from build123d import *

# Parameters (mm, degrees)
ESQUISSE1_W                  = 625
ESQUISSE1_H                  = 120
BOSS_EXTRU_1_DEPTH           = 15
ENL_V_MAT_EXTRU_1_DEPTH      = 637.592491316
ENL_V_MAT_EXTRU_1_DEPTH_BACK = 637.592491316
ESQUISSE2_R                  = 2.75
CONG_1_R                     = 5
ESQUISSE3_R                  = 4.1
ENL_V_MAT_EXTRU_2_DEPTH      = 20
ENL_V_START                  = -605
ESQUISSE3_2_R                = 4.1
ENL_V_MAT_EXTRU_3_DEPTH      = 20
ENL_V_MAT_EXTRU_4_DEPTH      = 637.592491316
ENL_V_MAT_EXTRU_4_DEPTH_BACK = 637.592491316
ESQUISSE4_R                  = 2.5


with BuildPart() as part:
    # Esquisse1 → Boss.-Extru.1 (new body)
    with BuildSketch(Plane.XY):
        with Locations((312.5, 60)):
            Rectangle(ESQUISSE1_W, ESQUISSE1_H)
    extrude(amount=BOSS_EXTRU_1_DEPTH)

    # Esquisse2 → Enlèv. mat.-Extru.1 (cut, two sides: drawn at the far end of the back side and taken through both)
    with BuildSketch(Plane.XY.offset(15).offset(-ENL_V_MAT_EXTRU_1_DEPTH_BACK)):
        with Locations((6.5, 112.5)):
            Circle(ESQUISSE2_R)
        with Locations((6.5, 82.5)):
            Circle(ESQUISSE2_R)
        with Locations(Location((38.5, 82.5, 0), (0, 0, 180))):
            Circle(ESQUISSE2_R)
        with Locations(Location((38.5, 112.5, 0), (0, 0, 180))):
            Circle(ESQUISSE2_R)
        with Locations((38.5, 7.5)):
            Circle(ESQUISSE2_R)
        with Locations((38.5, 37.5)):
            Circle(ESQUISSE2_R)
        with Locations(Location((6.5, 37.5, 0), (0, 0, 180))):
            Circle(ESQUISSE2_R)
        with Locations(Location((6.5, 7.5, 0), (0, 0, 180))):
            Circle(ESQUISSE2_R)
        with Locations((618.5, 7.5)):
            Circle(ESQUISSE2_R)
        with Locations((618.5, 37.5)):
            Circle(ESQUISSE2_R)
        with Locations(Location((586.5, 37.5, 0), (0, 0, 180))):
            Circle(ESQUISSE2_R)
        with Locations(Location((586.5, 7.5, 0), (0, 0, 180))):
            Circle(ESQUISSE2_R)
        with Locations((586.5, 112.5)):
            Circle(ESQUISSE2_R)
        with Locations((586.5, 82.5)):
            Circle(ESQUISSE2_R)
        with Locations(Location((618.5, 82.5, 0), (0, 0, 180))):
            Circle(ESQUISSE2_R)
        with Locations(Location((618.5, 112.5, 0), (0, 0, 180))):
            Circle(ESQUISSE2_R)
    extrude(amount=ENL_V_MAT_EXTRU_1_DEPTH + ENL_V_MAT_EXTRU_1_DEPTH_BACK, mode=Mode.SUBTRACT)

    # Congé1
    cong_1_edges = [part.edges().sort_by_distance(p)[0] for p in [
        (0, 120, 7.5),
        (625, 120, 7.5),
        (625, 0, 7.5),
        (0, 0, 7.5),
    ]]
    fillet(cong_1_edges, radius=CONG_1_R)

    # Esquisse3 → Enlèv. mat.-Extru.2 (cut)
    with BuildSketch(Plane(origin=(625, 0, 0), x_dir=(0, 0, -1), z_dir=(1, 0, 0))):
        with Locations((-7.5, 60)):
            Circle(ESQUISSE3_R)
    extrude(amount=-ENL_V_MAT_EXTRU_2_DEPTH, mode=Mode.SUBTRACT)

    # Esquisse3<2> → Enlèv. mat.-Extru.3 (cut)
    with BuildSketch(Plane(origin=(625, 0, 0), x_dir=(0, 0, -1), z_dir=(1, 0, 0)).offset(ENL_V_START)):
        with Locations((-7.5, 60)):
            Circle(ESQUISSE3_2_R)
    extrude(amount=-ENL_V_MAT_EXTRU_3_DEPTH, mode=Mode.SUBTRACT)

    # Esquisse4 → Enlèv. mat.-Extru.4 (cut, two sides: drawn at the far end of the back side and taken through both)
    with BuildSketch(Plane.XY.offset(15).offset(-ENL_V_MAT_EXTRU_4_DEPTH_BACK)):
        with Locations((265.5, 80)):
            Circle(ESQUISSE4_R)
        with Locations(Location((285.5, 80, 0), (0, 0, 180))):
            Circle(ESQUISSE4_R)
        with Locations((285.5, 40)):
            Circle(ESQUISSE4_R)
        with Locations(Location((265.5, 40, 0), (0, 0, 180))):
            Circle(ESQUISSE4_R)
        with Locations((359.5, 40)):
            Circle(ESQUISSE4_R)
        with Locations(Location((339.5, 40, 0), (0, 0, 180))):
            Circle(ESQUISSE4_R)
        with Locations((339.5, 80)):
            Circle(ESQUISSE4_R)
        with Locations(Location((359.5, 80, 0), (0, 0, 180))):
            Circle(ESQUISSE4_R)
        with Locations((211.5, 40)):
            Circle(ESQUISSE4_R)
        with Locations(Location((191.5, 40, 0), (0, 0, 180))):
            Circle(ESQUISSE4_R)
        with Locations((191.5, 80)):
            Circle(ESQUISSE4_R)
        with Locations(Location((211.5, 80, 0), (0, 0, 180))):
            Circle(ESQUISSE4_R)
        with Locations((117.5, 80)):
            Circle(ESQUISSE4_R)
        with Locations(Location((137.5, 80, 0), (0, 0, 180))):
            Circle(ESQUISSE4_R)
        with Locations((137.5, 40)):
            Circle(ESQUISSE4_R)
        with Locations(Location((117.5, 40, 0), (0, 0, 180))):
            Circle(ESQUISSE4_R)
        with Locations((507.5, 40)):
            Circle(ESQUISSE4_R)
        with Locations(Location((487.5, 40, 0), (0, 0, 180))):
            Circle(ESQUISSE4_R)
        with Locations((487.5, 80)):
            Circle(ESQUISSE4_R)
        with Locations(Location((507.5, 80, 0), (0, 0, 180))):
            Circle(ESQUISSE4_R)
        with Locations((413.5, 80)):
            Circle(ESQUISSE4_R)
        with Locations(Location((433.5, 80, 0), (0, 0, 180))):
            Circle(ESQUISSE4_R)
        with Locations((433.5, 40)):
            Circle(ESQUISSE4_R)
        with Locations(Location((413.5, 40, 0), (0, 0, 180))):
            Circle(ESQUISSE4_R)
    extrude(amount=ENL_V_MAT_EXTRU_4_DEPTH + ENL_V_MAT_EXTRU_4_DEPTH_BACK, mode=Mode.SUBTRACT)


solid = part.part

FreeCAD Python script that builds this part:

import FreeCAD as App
import Part
import Sketcher
from FreeCAD import Vector


def edges_at(feature, points):
    """Names of the edges that pass closest to the given points."""
    edges = feature.Shape.Edges
    near = lambda p: min(range(len(edges)), key=lambda i: edges[i].distToShape(Part.Vertex(*p))[0])
    return sorted({f"Edge{near(p) + 1}" for p in points})


def add_polygon(sketch, points):
    """Adds a closed chain of lines whose ends are joined by coincident constraints."""
    first, n = sketch.GeometryCount, len(points)
    for a, b in zip(points, points[1:] + points[:1]):
        sketch.addGeometry(Part.LineSegment(App.Vector(*a, 0), App.Vector(*b, 0)), False)
    for i in range(n):
        sketch.addConstraint(Sketcher.Constraint("Coincident", first + i, 2, first + (i + 1) % n, 1))

doc = App.newDocument("Part")
body = doc.addObject("PartDesign::Body", "Body")

sketch1 = body.newObject("Sketcher::SketchObject", "Sketch")
sketch1.AttachmentSupport = (doc.getObject("XY_Plane"), [""])
sketch1.MapMode = "FlatFace"
add_polygon(sketch1, [(0, 120), (0, 0), (625, 0), (625, 120)])
sketch1.addConstraint([
    Sketcher.Constraint("Vertical", 0),
    Sketcher.Constraint("Horizontal", 1),
    Sketcher.Constraint("Vertical", 2),
    Sketcher.Constraint("Horizontal", 3),
    Sketcher.Constraint("Coincident", 0, 2, -1, 1),
    Sketcher.Constraint("DistanceX", 1, 1, 1, 2, 625.0),
    Sketcher.Constraint("DistanceY", 0, 2, 0, 1, 120.0),
])
pad1 = body.newObject("PartDesign::Pad", "Pad")
pad1.Profile = sketch1
pad1.Length = 15

sketch2 = body.newObject("Sketcher::SketchObject", "Sketch001")
sketch2.AttachmentSupport = (doc.getObject("XY_Plane"), [""])
sketch2.MapMode = "FlatFace"
sketch2.AttachmentOffset = App.Placement(Vector(0, 0, 15), App.Rotation())
sketch2.addGeometry([
    Part.Circle(Vector(6.5, 112.5, 0), Vector(0, 0, 1), 2.75),
    Part.Circle(Vector(6.5, 82.5, 0), Vector(0, 0, 1), 2.75),
    Part.Circle(Vector(38.5, 82.5, 0), Vector(0, 0, 1), 2.75),
    Part.Circle(Vector(38.5, 112.5, 0), Vector(0, 0, 1), 2.75),
    Part.Circle(Vector(38.5, 7.5, 0), Vector(0, 0, 1), 2.75),
    Part.Circle(Vector(38.5, 37.5, 0), Vector(0, 0, 1), 2.75),
    Part.Circle(Vector(6.5, 37.5, 0), Vector(0, 0, 1), 2.75),
    Part.Circle(Vector(6.5, 7.5, 0), Vector(0, 0, 1), 2.75),
    Part.Circle(Vector(618.5, 7.5, 0), Vector(0, 0, 1), 2.75),
    Part.Circle(Vector(618.5, 37.5, 0), Vector(0, 0, 1), 2.75),
    Part.Circle(Vector(586.5, 37.5, 0), Vector(0, 0, 1), 2.75),
    Part.Circle(Vector(586.5, 7.5, 0), Vector(0, 0, 1), 2.75),
    Part.Circle(Vector(586.5, 112.5, 0), Vector(0, 0, 1), 2.75),
    Part.Circle(Vector(586.5, 82.5, 0), Vector(0, 0, 1), 2.75),
    Part.Circle(Vector(618.5, 82.5, 0), Vector(0, 0, 1), 2.75),
    Part.Circle(Vector(618.5, 112.5, 0), Vector(0, 0, 1), 2.75),
], False)
sketch2.addConstraint([
    Sketcher.Constraint("Equal", 0, 1),
    Sketcher.Constraint("Equal", 1, 2),
    Sketcher.Constraint("Equal", 2, 3),
    Sketcher.Constraint("Equal", 3, 4),
    Sketcher.Constraint("Equal", 4, 5),
    Sketcher.Constraint("Equal", 5, 6),
    Sketcher.Constraint("Equal", 6, 7),
    Sketcher.Constraint("Equal", 7, 8),
    Sketcher.Constraint("Equal", 8, 9),
    Sketcher.Constraint("Equal", 9, 10),
    Sketcher.Constraint("Equal", 10, 11),
    Sketcher.Constraint("Equal", 11, 12),
    Sketcher.Constraint("Equal", 12, 13),
    Sketcher.Constraint("Equal", 13, 14),
    Sketcher.Constraint("Equal", 14, 15),
    Sketcher.Constraint("Horizontal", 1, 3, 2, 3),
    Sketcher.Constraint("Horizontal", 0, 3, 3, 3),
    Sketcher.Constraint("Horizontal", 5, 3, 6, 3),
    Sketcher.Constraint("Horizontal", 4, 3, 7, 3),
    Sketcher.Constraint("Horizontal", 7, 3, 8, 3),
    Sketcher.Constraint("Horizontal", 6, 3, 9, 3),
    Sketcher.Constraint("Horizontal", 9, 3, 10, 3),
    Sketcher.Constraint("Horizontal", 8, 3, 11, 3),
    Sketcher.Constraint("Horizontal", 3, 3, 12, 3),
    Sketcher.Constraint("Horizontal", 2, 3, 13, 3),
    Sketcher.Constraint("Horizontal", 13, 3, 14, 3),
    Sketcher.Constraint("Horizontal", 12, 3, 15, 3),
    Sketcher.Constraint("Vertical", 0, 3, 1, 3),
    Sketcher.Constraint("Vertical", 2, 3, 3, 3),
    Sketcher.Constraint("Vertical", 3, 3, 4, 3),
    Sketcher.Constraint("Vertical", 4, 3, 5, 3),
    Sketcher.Constraint("Vertical", 1, 3, 6, 3),
    Sketcher.Constraint("Vertical", 6, 3, 7, 3),
    Sketcher.Constraint("Vertical", 8, 3, 9, 3),
    Sketcher.Constraint("Vertical", 10, 3, 11, 3),
    Sketcher.Constraint("Vertical", 11, 3, 12, 3),
    Sketcher.Constraint("Vertical", 12, 3, 13, 3),
    Sketcher.Constraint("Vertical", 9, 3, 14, 3),
    Sketcher.Constraint("Vertical", 14, 3, 15, 3),
    Sketcher.Constraint("Diameter", 0, 5.5),
    Sketcher.Constraint("DistanceY", 1, 3, 0, 3, 30.0),
    Sketcher.Constraint("DistanceX", 1, 3, 2, 3, 32.0),
    Sketcher.Constraint("DistanceY", 4, 3, 2, 3, 75.0),
    Sketcher.Constraint("DistanceY", 4, 3, 5, 3, 30.0),
    Sketcher.Constraint("DistanceX", 4, 3, 8, 3, 580.0),
    Sketcher.Constraint("DistanceX", 10, 3, 9, 3, 32.0),
    Sketcher.Constraint("DistanceX", -1, 1, 0, 3, 6.5),
    Sketcher.Constraint("DistanceY", -1, 1, 0, 3, 112.5),
])
pocket1 = body.newObject("PartDesign::Pocket", "Pocket")
pocket1.Profile = sketch2
pocket1.Type = "ThroughAll"
pocket1.Midplane = True
doc.recompute()

fillet = body.newObject("PartDesign::Fillet", "Fillet")
fillet.Base = (pocket1, edges_at(pocket1, [
    (0, 120, 7.5),
    (625, 120, 7.5),
    (625, 0, 7.5),
    (0, 0, 7.5),
]))
fillet.Radius = 5

sketch3 = body.newObject("Sketcher::SketchObject", "Sketch002")
sketch3.AttachmentSupport = (doc.getObject("YZ_Plane"), [""])
sketch3.MapMode = "FlatFace"
sketch3.AttachmentOffset = App.Placement(Vector(0, 0, 625), App.Rotation())
sketch3.addGeometry(Part.Circle(Vector(60, 7.5, 0), Vector(0, 0, 1), 4.1), False)
sketch3.addConstraint([
    Sketcher.Constraint("Diameter", 0, 8.2),
    Sketcher.Constraint("DistanceX", -1, 1, 0, 3, 60.0),
    Sketcher.Constraint("DistanceY", -1, 1, 0, 3, 7.5),
])
pocket2 = body.newObject("PartDesign::Pocket", "Pocket001")
pocket2.Profile = sketch3
pocket2.Length = 20

sketch4 = body.newObject("Sketcher::SketchObject", "Sketch003")
sketch4.AttachmentSupport = (doc.getObject("YZ_Plane"), [""])
sketch4.MapMode = "FlatFace"
sketch4.AttachmentOffset = App.Placement(Vector(0, 0, 20), App.Rotation())
sketch4.addGeometry(Part.Circle(Vector(60, 7.5, 0), Vector(0, 0, 1), 4.1), False)
sketch4.addConstraint([
    Sketcher.Constraint("Diameter", 0, 8.2),
    Sketcher.Constraint("DistanceX", -1, 1, 0, 3, 60.0),
    Sketcher.Constraint("DistanceY", -1, 1, 0, 3, 7.5),
])
pocket3 = body.newObject("PartDesign::Pocket", "Pocket002")
pocket3.Profile = sketch4
pocket3.Length = 20

sketch5 = body.newObject("Sketcher::SketchObject", "Sketch004")
sketch5.AttachmentSupport = (doc.getObject("XY_Plane"), [""])
sketch5.MapMode = "FlatFace"
sketch5.AttachmentOffset = App.Placement(Vector(0, 0, 15), App.Rotation())
sketch5.addGeometry([
    Part.Circle(Vector(265.5, 80, 0), Vector(0, 0, 1), 2.5),
    Part.Circle(Vector(285.5, 80, 0), Vector(0, 0, 1), 2.5),
    Part.Circle(Vector(285.5, 40, 0), Vector(0, 0, 1), 2.5),
    Part.Circle(Vector(265.5, 40, 0), Vector(0, 0, 1), 2.5),
    Part.Circle(Vector(359.5, 40, 0), Vector(0, 0, 1), 2.5),
    Part.Circle(Vector(339.5, 40, 0), Vector(0, 0, 1), 2.5),
    Part.Circle(Vector(339.5, 80, 0), Vector(0, 0, 1), 2.5),
    Part.Circle(Vector(359.5, 80, 0), Vector(0, 0, 1), 2.5),
    Part.Circle(Vector(211.5, 40, 0), Vector(0, 0, 1), 2.5),
    Part.Circle(Vector(191.5, 40, 0), Vector(0, 0, 1), 2.5),
    Part.Circle(Vector(191.5, 80, 0), Vector(0, 0, 1), 2.5),
    Part.Circle(Vector(211.5, 80, 0), Vector(0, 0, 1), 2.5),
    Part.Circle(Vector(117.5, 80, 0), Vector(0, 0, 1), 2.5),
    Part.Circle(Vector(137.5, 80, 0), Vector(0, 0, 1), 2.5),
    Part.Circle(Vector(137.5, 40, 0), Vector(0, 0, 1), 2.5),
    Part.Circle(Vector(117.5, 40, 0), Vector(0, 0, 1), 2.5),
    Part.Circle(Vector(507.5, 40, 0), Vector(0, 0, 1), 2.5),
    Part.Circle(Vector(487.5, 40, 0), Vector(0, 0, 1), 2.5),
    Part.Circle(Vector(487.5, 80, 0), Vector(0, 0, 1), 2.5),
    Part.Circle(Vector(507.5, 80, 0), Vector(0, 0, 1), 2.5),
    Part.Circle(Vector(413.5, 80, 0), Vector(0, 0, 1), 2.5),
    Part.Circle(Vector(433.5, 80, 0), Vector(0, 0, 1), 2.5),
    Part.Circle(Vector(433.5, 40, 0), Vector(0, 0, 1), 2.5),
    Part.Circle(Vector(413.5, 40, 0), Vector(0, 0, 1), 2.5),
], False)
sketch5.addConstraint([
    Sketcher.Constraint("Equal", 0, 1),
    Sketcher.Constraint("Equal", 1, 2),
    Sketcher.Constraint("Equal", 2, 3),
    Sketcher.Constraint("Equal", 3, 4),
    Sketcher.Constraint("Equal", 4, 5),
    Sketcher.Constraint("Equal", 5, 6),
    Sketcher.Constraint("Equal", 6, 7),
    Sketcher.Constraint("Equal", 7, 8),
    Sketcher.Constraint("Equal", 8, 9),
    Sketcher.Constraint("Equal", 9, 10),
    Sketcher.Constraint("Equal", 10, 11),
    Sketcher.Constraint("Equal", 11, 12),
    Sketcher.Constraint("Equal", 12, 13),
    Sketcher.Constraint("Equal", 13, 14),
    Sketcher.Constraint("Equal", 14, 15),
    Sketcher.Constraint("Equal", 15, 16),
    Sketcher.Constraint("Equal", 16, 17),
    Sketcher.Constraint("Equal", 17, 18),
    Sketcher.Constraint("Equal", 18, 19),
    Sketcher.Constraint("Equal", 19, 20),
    Sketcher.Constraint("Equal", 20, 21),
    Sketcher.Constraint("Equal", 21, 22),
    Sketcher.Constraint("Equal", 22, 23),
    Sketcher.Constraint("Horizontal", 0, 3, 1, 3),
    Sketcher.Constraint("Horizontal", 2, 3, 3, 3),
    Sketcher.Constraint("Horizontal", 3, 3, 4, 3),
    Sketcher.Constraint("Horizontal", 4, 3, 5, 3),
    Sketcher.Constraint("Horizontal", 1, 3, 6, 3),
    Sketcher.Constraint("Horizontal", 6, 3, 7, 3),
    Sketcher.Constraint("Horizontal", 5, 3, 8, 3),
    Sketcher.Constraint("Horizontal", 8, 3, 9, 3),
    Sketcher.Constraint("Horizontal", 7, 3, 10, 3),
    Sketcher.Constraint("Horizontal", 10, 3, 11, 3),
    Sketcher.Constraint("Horizontal", 11, 3, 12, 3),
    Sketcher.Constraint("Horizontal", 12, 3, 13, 3),
    Sketcher.Constraint("Horizontal", 9, 3, 14, 3),
    Sketcher.Constraint("Horizontal", 14, 3, 15, 3),
    Sketcher.Constraint("Horizontal", 15, 3, 16, 3),
    Sketcher.Constraint("Horizontal", 16, 3, 17, 3),
    Sketcher.Constraint("Horizontal", 13, 3, 18, 3),
    Sketcher.Constraint("Horizontal", 18, 3, 19, 3),
    Sketcher.Constraint("Horizontal", 19, 3, 20, 3),
    Sketcher.Constraint("Horizontal", 20, 3, 21, 3),
    Sketcher.Constraint("Horizontal", 17, 3, 22, 3),
    Sketcher.Constraint("Horizontal", 22, 3, 23, 3),
    Sketcher.Constraint("Vertical", 1, 3, 2, 3),
    Sketcher.Constraint("Vertical", 0, 3, 3, 3),
    Sketcher.Constraint("Vertical", 5, 3, 6, 3),
    Sketcher.Constraint("Vertical", 4, 3, 7, 3),
    Sketcher.Constraint("Vertical", 9, 3, 10, 3),
    Sketcher.Constraint("Vertical", 8, 3, 11, 3),
    Sketcher.Constraint("Vertical", 13, 3, 14, 3),
    Sketcher.Constraint("Vertical", 12, 3, 15, 3),
    Sketcher.Constraint("Vertical", 17, 3, 18, 3),
    Sketcher.Constraint("Vertical", 16, 3, 19, 3),
    Sketcher.Constraint("Vertical", 21, 3, 22, 3),
    Sketcher.Constraint("Vertical", 20, 3, 23, 3),
    Sketcher.Constraint("Diameter", 0, 5.0),
    Sketcher.Constraint("DistanceY", -1, 1, 0, 3, 80.0),
    Sketcher.Constraint("DistanceY", -1, 1, 2, 3, 40.0),
    Sketcher.Constraint("DistanceX", 0, 3, 1, 3, 20.0),
    Sketcher.Constraint("DistanceX", 2, 3, 4, 3, 74.0),
    Sketcher.Constraint("DistanceX", 5, 3, 4, 3, 20.0),
    Sketcher.Constraint("DistanceX", 8, 3, 3, 3, 54.0),
    Sketcher.Constraint("DistanceX", 9, 3, 8, 3, 20.0),
    Sketcher.Constraint("DistanceX", 12, 3, 10, 3, 74.0),
    Sketcher.Constraint("DistanceX", 12, 3, 13, 3, 20.0),
    Sketcher.Constraint("DistanceX", 4, 3, 16, 3, 148.0),
    Sketcher.Constraint("DistanceX", 17, 3, 16, 3, 20.0),
    Sketcher.Constraint("DistanceX", 7, 3, 20, 3, 54.0),
    Sketcher.Constraint("DistanceX", 20, 3, 21, 3, 20.0),
    Sketcher.Constraint("DistanceX", -1, 1, 0, 3, 265.5),
])
pocket4 = body.newObject("PartDesign::Pocket", "Pocket003")
pocket4.Profile = sketch5
pocket4.Type = "ThroughAll"
pocket4.Midplane = True

doc.recompute()
